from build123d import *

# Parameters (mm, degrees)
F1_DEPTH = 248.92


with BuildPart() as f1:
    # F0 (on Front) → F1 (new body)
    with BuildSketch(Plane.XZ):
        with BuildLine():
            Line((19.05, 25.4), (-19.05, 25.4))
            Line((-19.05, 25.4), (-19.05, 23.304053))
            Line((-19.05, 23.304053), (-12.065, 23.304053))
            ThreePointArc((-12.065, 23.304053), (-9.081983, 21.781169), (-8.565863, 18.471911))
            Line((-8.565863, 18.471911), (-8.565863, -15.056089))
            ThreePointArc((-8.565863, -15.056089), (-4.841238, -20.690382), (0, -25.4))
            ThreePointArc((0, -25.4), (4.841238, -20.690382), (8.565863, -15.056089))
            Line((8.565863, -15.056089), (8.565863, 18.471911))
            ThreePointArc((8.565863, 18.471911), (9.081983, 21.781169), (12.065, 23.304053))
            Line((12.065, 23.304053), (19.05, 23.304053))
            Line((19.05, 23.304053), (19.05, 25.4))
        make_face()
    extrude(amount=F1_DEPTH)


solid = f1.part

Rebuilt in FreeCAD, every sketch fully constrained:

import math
import FreeCAD as App
import Part
import Sketcher
Q = App.Units.Quantity

doc = App.newDocument("Part")
body = doc.addObject("PartDesign::Body", "Body")

# Sketch on XZ plane
sketch1 = doc.addObject("Sketcher::SketchObject", "Sketch")
body.addObject(sketch1)
sketch1.AttachmentSupport = (doc.XZ_Plane, [""])
sketch1.MapMode = "FlatFace"
sketch1.addGeometry([
    Part.LineSegment(App.Vector(19.05, 25.4, 0), App.Vector(-19.05, 25.4, 0)),  # 0
    Part.LineSegment(App.Vector(-19.05, 25.4, 0), App.Vector(-19.05, 23.304053, 0)),  # 1
    Part.LineSegment(App.Vector(-19.05, 23.304053, 0), App.Vector(-12.065, 23.304053, 0)),  # 2
    Part.ArcOfCircle(Part.Circle(App.Vector(-12.064999, 19.621054, 0), App.Vector(0, 0, 1), 3.682999), math.radians(-18.180572), math.radians(90.000013)),  # 3
    Part.LineSegment(App.Vector(-8.565863, 18.471911, 0), App.Vector(-8.565863, -15.056089, 0)),  # 4
    Part.ArcOfCircle(Part.Circle(App.Vector(19.393504, -0.621428, 0), App.Vector(0, 0, 1), 31.465626), math.radians(-152.693922), math.radians(-128.049305)),  # 5
    Part.ArcOfCircle(Part.Circle(App.Vector(-19.393504, -0.621428, 0), App.Vector(0, 0, 1), 31.465626), math.radians(-51.950695), math.radians(-27.306078)),  # 6
    Part.LineSegment(App.Vector(8.565863, -15.056089, 0), App.Vector(8.565863, 18.471911, 0)),  # 7
    Part.ArcOfCircle(Part.Circle(App.Vector(12.064999, 19.621054, 0), App.Vector(0, 0, 1), 3.682999), math.radians(89.999987), math.radians(198.180572)),  # 8
    Part.LineSegment(App.Vector(12.065, 23.304053, 0), App.Vector(19.05, 23.304053, 0)),  # 9
    Part.LineSegment(App.Vector(19.05, 23.304053, 0), App.Vector(19.05, 25.4, 0)),  # 10
], False)
sketch1.addConstraint([
    Sketcher.Constraint("Coincident", 0, 2, 1, 1),
    Sketcher.Constraint("Coincident", 1, 2, 2, 1),
    Sketcher.Constraint("Tangent", 2, 2, 3, 2),
    Sketcher.Constraint("Coincident", 3, 1, 4, 1),
    Sketcher.Constraint("Coincident", 4, 2, 5, 1),
    Sketcher.Constraint("Coincident", 5, 2, 6, 1),
    Sketcher.Constraint("Coincident", 6, 2, 7, 1),
    Sketcher.Constraint("Coincident", 7, 2, 8, 2),
    Sketcher.Constraint("Tangent", 8, 1, 9, 1),
    Sketcher.Constraint("Coincident", 9, 2, 10, 1),
    Sketcher.Constraint("Coincident", 10, 2, 0, 1),
    Sketcher.Constraint("Horizontal", 0),
    Sketcher.Constraint("Vertical", 1),
    Sketcher.Constraint("Horizontal", 2),
    Sketcher.Constraint("Vertical", 4),
    Sketcher.Constraint("Vertical", 7),
    Sketcher.Constraint("Horizontal", 9),
    Sketcher.Constraint("Vertical", 10),
    Sketcher.Constraint("Equal", 5, 6),
    Sketcher.Constraint("Equal", 3, 8),
    Sketcher.Constraint("Symmetric", 5, 3, 6, 3, -2),
    Sketcher.Constraint("Symmetric", 3, 3, 8, 3, -2),
    Sketcher.Constraint("Horizontal", 4, 2, 6, 2),
    Sketcher.Constraint("Equal", 2, 9),
    Sketcher.Constraint("DistanceX", 0, 2, 0, 1, Q("1.5 in")),
    Sketcher.Constraint("DistanceY", -1, 1, 0, 2, Q("1 in")),
    Sketcher.Constraint("DistanceY", 5, 2, -1, 1, Q("1 in")),
    Sketcher.Constraint("Radius", 3, Q("0.145 in")),
    Sketcher.Constraint("DistanceY", 4, 2, 4, 1, Q("1.32 in")),
    Sketcher.Constraint("DistanceX", 2, 1, 2, 2, Q("0.275 in")),
    Sketcher.Constraint("Radius", 5, Q("31.465626 mm")),
    Sketcher.Constraint("DistanceY", 1, 2, 1, 1, Q("2.095947 mm")),
    Sketcher.Constraint("DistanceY", -1, 1, 3, 1, Q("18.471911 mm")),
])
pad1 = doc.addObject("PartDesign::Pad", "Pad")
body.addObject(pad1)
pad1.Profile = sketch1
pad1.Length = Q("9.8 in")

doc.recompute()
